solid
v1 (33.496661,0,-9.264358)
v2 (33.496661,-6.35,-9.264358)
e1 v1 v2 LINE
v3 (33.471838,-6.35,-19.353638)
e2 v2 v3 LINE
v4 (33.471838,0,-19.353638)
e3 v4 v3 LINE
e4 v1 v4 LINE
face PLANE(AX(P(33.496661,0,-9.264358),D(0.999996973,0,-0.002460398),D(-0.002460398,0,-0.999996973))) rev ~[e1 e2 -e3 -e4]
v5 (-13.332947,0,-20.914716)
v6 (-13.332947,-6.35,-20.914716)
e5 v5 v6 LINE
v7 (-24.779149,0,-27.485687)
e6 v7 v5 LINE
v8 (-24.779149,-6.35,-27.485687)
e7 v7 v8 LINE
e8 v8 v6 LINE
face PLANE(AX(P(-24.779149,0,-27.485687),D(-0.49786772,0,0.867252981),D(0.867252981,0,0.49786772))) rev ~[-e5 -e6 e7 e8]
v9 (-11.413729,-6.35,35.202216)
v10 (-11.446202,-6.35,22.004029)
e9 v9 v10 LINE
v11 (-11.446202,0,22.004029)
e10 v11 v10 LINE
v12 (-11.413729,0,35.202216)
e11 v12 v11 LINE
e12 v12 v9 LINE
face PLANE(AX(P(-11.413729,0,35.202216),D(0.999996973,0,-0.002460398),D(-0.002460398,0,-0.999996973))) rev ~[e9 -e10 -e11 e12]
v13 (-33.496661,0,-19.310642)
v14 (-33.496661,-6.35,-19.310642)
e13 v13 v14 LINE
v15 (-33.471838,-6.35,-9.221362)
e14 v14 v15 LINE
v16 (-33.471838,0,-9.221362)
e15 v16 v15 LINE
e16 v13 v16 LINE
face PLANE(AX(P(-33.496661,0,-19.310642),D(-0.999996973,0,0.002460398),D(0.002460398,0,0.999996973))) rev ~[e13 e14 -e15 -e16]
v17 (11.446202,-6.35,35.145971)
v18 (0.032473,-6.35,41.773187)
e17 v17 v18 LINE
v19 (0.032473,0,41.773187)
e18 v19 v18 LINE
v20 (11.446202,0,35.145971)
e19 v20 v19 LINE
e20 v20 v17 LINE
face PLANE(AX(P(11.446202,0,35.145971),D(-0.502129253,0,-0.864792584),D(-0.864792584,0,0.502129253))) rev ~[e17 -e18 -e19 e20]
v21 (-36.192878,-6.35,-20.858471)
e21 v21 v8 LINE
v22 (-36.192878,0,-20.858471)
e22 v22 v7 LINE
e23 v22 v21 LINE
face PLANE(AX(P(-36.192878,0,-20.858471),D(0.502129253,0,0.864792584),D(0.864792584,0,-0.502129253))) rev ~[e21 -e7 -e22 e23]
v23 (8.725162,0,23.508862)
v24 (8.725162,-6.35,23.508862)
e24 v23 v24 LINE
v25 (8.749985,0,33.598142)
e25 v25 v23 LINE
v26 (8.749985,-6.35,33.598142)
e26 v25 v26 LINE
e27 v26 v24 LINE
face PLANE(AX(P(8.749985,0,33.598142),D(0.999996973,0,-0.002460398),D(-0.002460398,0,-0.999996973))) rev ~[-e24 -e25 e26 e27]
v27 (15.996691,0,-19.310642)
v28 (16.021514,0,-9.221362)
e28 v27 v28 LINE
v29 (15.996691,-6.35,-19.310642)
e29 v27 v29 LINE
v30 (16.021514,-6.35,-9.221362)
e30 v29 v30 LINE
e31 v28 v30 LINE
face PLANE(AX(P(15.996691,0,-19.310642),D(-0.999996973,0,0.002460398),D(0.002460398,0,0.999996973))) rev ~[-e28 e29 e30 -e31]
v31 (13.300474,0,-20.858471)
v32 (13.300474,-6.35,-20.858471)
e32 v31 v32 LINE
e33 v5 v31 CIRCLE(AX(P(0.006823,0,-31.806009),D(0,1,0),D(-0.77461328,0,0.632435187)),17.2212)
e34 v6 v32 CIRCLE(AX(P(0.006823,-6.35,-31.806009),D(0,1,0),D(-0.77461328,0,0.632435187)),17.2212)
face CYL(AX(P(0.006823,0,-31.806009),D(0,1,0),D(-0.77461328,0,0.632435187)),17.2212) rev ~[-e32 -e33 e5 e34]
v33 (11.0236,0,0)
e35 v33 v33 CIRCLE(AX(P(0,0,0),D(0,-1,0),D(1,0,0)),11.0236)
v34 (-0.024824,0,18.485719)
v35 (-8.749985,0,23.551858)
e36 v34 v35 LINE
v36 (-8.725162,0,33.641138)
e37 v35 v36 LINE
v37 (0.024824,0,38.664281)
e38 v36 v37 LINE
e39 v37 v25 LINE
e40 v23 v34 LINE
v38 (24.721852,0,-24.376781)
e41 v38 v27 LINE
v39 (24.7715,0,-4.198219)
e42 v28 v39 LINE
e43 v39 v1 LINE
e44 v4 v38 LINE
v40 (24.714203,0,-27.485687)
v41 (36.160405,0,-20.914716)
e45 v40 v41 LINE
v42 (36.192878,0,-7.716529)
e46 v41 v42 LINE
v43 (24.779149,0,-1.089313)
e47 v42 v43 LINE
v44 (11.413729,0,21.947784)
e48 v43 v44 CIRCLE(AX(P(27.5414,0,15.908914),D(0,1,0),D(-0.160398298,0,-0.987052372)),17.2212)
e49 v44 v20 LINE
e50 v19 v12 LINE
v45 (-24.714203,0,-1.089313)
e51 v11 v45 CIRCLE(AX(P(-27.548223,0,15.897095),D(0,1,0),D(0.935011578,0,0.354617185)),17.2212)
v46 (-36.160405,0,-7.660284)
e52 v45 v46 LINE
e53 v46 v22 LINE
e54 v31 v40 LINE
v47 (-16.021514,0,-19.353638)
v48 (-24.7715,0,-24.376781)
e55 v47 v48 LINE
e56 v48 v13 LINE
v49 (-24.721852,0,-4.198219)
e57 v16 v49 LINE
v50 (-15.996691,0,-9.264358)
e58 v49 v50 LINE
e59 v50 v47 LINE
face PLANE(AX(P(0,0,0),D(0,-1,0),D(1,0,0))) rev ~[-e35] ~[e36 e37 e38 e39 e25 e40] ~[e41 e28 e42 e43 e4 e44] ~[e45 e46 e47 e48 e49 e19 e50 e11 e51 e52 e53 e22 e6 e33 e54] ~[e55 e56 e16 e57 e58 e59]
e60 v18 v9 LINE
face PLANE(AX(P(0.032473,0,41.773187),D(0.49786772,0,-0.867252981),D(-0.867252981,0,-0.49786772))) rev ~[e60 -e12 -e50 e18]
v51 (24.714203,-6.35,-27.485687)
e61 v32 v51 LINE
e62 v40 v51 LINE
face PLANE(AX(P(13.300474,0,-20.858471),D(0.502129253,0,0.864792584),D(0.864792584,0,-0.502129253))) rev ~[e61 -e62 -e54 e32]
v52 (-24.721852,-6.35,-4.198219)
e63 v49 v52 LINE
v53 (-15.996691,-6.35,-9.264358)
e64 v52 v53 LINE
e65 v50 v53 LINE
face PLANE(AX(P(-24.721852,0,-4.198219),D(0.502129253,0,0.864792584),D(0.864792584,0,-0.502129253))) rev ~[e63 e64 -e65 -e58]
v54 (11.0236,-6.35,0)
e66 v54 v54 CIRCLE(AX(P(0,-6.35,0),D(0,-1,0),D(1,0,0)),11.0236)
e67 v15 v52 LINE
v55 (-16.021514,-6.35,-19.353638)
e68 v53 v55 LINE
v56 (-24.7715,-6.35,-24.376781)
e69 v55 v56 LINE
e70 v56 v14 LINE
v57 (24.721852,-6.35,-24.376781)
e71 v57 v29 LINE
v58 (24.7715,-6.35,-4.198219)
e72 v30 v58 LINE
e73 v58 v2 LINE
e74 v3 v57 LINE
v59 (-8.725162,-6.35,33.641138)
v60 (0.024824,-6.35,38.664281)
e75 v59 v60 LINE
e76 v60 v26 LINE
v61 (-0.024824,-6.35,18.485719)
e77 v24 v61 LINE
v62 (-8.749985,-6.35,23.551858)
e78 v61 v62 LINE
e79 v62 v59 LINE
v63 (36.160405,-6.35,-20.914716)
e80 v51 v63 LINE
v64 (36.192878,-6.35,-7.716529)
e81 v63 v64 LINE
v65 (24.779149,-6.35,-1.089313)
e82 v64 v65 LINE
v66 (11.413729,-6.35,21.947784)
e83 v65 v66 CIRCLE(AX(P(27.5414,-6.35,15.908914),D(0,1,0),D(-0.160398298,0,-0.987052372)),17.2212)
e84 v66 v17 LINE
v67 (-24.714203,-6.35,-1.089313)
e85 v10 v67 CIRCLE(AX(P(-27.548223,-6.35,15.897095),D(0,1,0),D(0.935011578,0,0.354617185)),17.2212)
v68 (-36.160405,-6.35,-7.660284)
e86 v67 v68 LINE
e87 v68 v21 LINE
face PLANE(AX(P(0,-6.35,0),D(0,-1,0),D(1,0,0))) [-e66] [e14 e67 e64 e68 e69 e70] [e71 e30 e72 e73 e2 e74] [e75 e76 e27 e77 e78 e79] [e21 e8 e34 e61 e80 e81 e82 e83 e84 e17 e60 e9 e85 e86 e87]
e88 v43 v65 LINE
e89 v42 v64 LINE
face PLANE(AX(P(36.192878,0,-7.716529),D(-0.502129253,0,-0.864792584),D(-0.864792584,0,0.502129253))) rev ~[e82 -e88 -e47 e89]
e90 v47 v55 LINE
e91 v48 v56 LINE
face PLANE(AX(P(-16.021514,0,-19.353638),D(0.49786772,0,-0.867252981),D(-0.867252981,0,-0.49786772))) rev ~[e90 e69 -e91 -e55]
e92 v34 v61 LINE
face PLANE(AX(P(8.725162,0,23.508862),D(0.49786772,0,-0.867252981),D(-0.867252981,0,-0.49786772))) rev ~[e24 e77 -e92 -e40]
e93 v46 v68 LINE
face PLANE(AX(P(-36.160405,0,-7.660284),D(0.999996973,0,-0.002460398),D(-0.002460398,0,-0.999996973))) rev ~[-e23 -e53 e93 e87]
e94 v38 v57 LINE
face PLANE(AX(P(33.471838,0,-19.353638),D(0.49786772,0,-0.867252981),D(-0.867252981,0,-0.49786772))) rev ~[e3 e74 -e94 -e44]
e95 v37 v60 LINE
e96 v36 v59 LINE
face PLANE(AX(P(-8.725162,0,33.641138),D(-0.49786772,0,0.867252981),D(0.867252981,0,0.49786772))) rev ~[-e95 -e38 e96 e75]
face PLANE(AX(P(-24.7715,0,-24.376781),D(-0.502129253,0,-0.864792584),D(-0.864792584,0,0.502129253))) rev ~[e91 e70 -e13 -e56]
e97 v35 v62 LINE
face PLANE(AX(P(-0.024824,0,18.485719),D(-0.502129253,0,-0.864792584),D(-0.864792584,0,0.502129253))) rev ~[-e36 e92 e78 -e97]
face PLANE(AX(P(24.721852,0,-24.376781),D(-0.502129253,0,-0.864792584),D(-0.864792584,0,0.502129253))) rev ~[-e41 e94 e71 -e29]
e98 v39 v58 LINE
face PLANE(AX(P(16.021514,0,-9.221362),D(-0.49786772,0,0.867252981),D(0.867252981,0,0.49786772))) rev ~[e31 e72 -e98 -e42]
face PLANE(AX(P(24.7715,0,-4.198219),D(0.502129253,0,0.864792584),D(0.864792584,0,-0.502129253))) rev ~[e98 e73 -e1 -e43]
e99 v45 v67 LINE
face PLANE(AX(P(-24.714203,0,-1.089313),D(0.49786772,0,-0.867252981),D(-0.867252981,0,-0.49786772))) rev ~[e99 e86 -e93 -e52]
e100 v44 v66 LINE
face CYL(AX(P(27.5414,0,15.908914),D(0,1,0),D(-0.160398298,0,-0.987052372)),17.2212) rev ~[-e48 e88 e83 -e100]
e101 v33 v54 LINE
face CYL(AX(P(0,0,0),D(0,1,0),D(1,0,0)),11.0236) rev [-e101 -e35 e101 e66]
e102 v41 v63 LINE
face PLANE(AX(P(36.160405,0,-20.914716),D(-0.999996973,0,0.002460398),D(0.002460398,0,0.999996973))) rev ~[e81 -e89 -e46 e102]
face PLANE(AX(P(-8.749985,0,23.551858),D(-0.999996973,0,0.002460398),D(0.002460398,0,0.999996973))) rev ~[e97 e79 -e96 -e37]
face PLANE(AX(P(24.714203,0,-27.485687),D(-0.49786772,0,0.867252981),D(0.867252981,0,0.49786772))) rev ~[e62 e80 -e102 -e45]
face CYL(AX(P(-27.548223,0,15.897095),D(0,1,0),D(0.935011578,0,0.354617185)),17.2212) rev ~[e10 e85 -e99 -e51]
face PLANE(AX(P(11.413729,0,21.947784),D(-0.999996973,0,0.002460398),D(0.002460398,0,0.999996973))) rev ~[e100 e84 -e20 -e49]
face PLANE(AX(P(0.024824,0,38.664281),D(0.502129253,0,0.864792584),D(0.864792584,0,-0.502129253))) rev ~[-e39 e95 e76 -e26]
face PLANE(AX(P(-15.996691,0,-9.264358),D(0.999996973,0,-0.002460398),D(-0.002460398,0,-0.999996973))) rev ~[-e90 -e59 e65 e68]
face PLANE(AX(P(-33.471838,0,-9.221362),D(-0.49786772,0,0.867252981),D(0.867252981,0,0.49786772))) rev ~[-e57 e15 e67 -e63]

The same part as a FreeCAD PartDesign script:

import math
import FreeCAD as App
import Part
import Sketcher

V = App.Vector
Q = App.Units.Quantity


def add_polygon(sketch, points):
    """Adds a closed chain of lines whose ends are joined by coincident constraints."""
    first, n = sketch.GeometryCount, len(points)
    for a, b in zip(points, points[1:] + points[:1]):
        sketch.addGeometry(Part.LineSegment(App.Vector(*a, 0), App.Vector(*b, 0)), False)
    for i in range(n):
        sketch.addConstraint(Sketcher.Constraint("Coincident", first + i, 2, first + (i + 1) % n, 1))

doc = App.newDocument("Part")
body = doc.addObject("PartDesign::Body", "Body")

sketch1 = body.newObject("Sketcher::SketchObject", "Sketch")
sketch1.AttachmentSupport = (doc.getObject("XZ_Plane"), [""])
sketch1.MapMode = "FlatFace"
sketch1.addGeometry(Part.ArcOfCircle(Part.Circle(V(28, 16, 0), V(0, 0, 1), 17), math.radians(159), math.radians(261)), False)
sketch1.addGeometry(Part.LineSegment(V(11, 22, 0), V(11, 35, 0)), False)
sketch1.addGeometry(Part.LineSegment(V(11, 35, 0), V(0, 42, 0)), False)
sketch1.addGeometry(Part.LineSegment(V(0, 42, 0), V(-11, 35, 0)), False)
sketch1.addGeometry(Part.LineSegment(V(-11, 35, 0), V(-11, 22, 0)), False)
sketch1.addGeometry(Part.ArcOfCircle(Part.Circle(V(-28, 16, 0), V(0, 0, 1), 17), math.radians(-81), math.radians(21)), False)
sketch1.addGeometry(Part.LineSegment(V(-25, -1, 0), V(-36, -8, 0)), False)
sketch1.addGeometry(Part.LineSegment(V(-36, -8, 0), V(-36, -21, 0)), False)
sketch1.addGeometry(Part.LineSegment(V(-36, -21, 0), V(-25, -27, 0)), False)
sketch1.addGeometry(Part.LineSegment(V(-25, -27, 0), V(-13, -21, 0)), False)
sketch1.addGeometry(Part.ArcOfCircle(Part.Circle(V(0, -32, 0), V(0, 0, 1), 17), math.radians(39), math.radians(141)), False)
sketch1.addGeometry(Part.LineSegment(V(13, -21, 0), V(25, -27, 0)), False)
sketch1.addGeometry(Part.LineSegment(V(25, -27, 0), V(36, -21, 0)), False)
sketch1.addGeometry(Part.LineSegment(V(36, -21, 0), V(36, -8, 0)), False)
sketch1.addGeometry(Part.LineSegment(V(36, -8, 0), V(25, -1, 0)), False)
add_polygon(sketch1, [(-16, -19), (-25, -24), (-33, -19), (-33, -9), (-25, -4), (-16, -9)])
add_polygon(sketch1, [(25, -4), (33, -9), (33, -19), (25, -24), (16, -19), (16, -9)])
sketch1.addGeometry(Part.Circle(V(0, 0, 0), V(0, 0, 1), 11), False)
add_polygon(sketch1, [(0, 39), (9, 34), (9, 24), (0, 18), (-9, 24), (-9, 34)])
sketch1.addConstraint([
    Sketcher.Constraint("Coincident", 0, 1, 1, 1),
    Sketcher.Constraint("Coincident", 1, 2, 2, 1),
    Sketcher.Constraint("Coincident", 2, 2, 3, 1),
    Sketcher.Constraint("Coincident", 3, 2, 4, 1),
    Sketcher.Constraint("Coincident", 4, 2, 5, 2),
    Sketcher.Constraint("Coincident", 5, 1, 6, 1),
    Sketcher.Constraint("Coincident", 6, 2, 7, 1),
    Sketcher.Constraint("Coincident", 7, 2, 8, 1),
    Sketcher.Constraint("Coincident", 8, 2, 9, 1),
    Sketcher.Constraint("Coincident", 9, 2, 10, 2),
    Sketcher.Constraint("Coincident", 10, 1, 11, 1),
    Sketcher.Constraint("Coincident", 11, 2, 12, 1),
    Sketcher.Constraint("Coincident", 12, 2, 13, 1),
    Sketcher.Constraint("Coincident", 13, 2, 14, 1),
    Sketcher.Constraint("Coincident", 14, 2, 0, 2),
    Sketcher.Constraint("Coincident", 27, 3, -1, 1),
    Sketcher.Constraint("Equal", 0, 5),
    Sketcher.Constraint("Equal", 5, 10),
    Sketcher.Constraint("Parallel", 1, 4),
    Sketcher.Constraint("Parallel", 3, 6),
    Sketcher.Constraint("Parallel", 4, 7),
    Sketcher.Constraint("Parallel", 2, 8),
    Sketcher.Constraint("Parallel", 6, 9),
    Sketcher.Constraint("Parallel", 8, 11),
    Sketcher.Constraint("Parallel", 9, 12),
    Sketcher.Constraint("Parallel", 7, 13),
    Sketcher.Constraint("Parallel", 11, 14),
    Sketcher.Constraint("Parallel", 12, 15),
    Sketcher.Constraint("Parallel", 14, 16),
    Sketcher.Constraint("Parallel", 13, 17),
    Sketcher.Constraint("Parallel", 15, 18),
    Sketcher.Constraint("Parallel", 16, 19),
    Sketcher.Constraint("Parallel", 17, 20),
    Sketcher.Constraint("Parallel", 19, 21),
    Sketcher.Constraint("Parallel", 20, 22),
    Sketcher.Constraint("Parallel", 18, 23),
    Sketcher.Constraint("Parallel", 21, 24),
    Sketcher.Constraint("Parallel", 22, 25),
    Sketcher.Constraint("Parallel", 23, 26),
    Sketcher.Constraint("Parallel", 24, 28),
    Sketcher.Constraint("Parallel", 25, 29),
    Sketcher.Constraint("Parallel", 26, 30),
    Sketcher.Constraint("Parallel", 28, 31),
    Sketcher.Constraint("Parallel", 29, 32),
    Sketcher.Constraint("Parallel", 30, 33),
    Sketcher.Constraint("Horizontal", 7, 2, 10, 1),
    Sketcher.Constraint("Horizontal", 8, 2, 11, 2),
    Sketcher.Constraint("Horizontal", 9, 2, 12, 2),
    Sketcher.Constraint("Horizontal", 5, 1, 14, 2),
    Sketcher.Constraint("Horizontal", 19, 2, 21, 2),
    Sketcher.Constraint("Horizontal", 20, 2, 22, 2),
    Sketcher.Constraint("Horizontal", 15, 2, 23, 2),
    Sketcher.Constraint("Horizontal", 16, 2, 24, 2),
    Sketcher.Constraint("Horizontal", 17, 2, 25, 2),
    Sketcher.Constraint("Equal", 1, 2),
    Sketcher.Constraint("Equal", 2, 3),
    Sketcher.Constraint("Equal", 3, 4),
    Sketcher.Constraint("Equal", 4, 6),
    Sketcher.Constraint("Equal", 6, 7),
    Sketcher.Constraint("Equal", 7, 8),
    Sketcher.Constraint("Equal", 8, 9),
    Sketcher.Constraint("Equal", 12, 13),
    Sketcher.Constraint("Equal", 15, 16),
    Sketcher.Constraint("Equal", 16, 17),
    Sketcher.Constraint("Equal", 17, 18),
    Sketcher.Constraint("Equal", 26, 28),
    Sketcher.Constraint("Equal", 28, 29),
    Sketcher.Constraint("Equal", 29, 30),
    Sketcher.Constraint("Equal", 30, 31),
    Sketcher.Constraint("Diameter", 27, Q("0.868 in")),
    Sketcher.Constraint("Radius", 0, Q("0.678 in")),
    Sketcher.Constraint("DistanceX", 5, 1, -1, 1, Q("0.9730001 in")),
    Sketcher.Constraint("DistanceX", -1, 1, 11, 2, Q("0.9730001 in")),
    Sketcher.Constraint("DistanceX", 6, 2, 4, 2, Q("0.9730001 in")),
    Sketcher.Constraint("DistanceX", -1, 1, 0, 3, 27.5414),
    Sketcher.Constraint("DistanceX", -1, 1, 1, 2, 11.446202),
    Sketcher.Constraint("DistanceX", 4, 2, -1, 1, 11.446202),
    Sketcher.Constraint("DistanceX", 15, 2, -1, 1, 24.7715),
    Sketcher.Constraint("DistanceX", -1, 1, 26, 2, 24.7715),
    Sketcher.Constraint("DistanceX", 7, 2, 10, 3, 36.199701),
    Sketcher.Constraint("DistanceY", 11, 2, 0, 3, 43.394601),
    Sketcher.Constraint("Distance", 15, 10.089311),
    Sketcher.Constraint("DistanceY", 10, 3, -1, 1, 31.806009),
    Sketcher.Constraint("DistanceY", 15, 2, -1, 1, 24.376781),
    Sketcher.Constraint("DistanceX", -1, 1, 29, 2, 8.725162),
    Sketcher.Constraint("DistanceY", -1, 1, 29, 2, 23.508862),
])
pad1 = body.newObject("PartDesign::Pad", "Pad")
pad1.Profile = sketch1
pad1.Length = Q("0.25 in")

doc.recompute()
